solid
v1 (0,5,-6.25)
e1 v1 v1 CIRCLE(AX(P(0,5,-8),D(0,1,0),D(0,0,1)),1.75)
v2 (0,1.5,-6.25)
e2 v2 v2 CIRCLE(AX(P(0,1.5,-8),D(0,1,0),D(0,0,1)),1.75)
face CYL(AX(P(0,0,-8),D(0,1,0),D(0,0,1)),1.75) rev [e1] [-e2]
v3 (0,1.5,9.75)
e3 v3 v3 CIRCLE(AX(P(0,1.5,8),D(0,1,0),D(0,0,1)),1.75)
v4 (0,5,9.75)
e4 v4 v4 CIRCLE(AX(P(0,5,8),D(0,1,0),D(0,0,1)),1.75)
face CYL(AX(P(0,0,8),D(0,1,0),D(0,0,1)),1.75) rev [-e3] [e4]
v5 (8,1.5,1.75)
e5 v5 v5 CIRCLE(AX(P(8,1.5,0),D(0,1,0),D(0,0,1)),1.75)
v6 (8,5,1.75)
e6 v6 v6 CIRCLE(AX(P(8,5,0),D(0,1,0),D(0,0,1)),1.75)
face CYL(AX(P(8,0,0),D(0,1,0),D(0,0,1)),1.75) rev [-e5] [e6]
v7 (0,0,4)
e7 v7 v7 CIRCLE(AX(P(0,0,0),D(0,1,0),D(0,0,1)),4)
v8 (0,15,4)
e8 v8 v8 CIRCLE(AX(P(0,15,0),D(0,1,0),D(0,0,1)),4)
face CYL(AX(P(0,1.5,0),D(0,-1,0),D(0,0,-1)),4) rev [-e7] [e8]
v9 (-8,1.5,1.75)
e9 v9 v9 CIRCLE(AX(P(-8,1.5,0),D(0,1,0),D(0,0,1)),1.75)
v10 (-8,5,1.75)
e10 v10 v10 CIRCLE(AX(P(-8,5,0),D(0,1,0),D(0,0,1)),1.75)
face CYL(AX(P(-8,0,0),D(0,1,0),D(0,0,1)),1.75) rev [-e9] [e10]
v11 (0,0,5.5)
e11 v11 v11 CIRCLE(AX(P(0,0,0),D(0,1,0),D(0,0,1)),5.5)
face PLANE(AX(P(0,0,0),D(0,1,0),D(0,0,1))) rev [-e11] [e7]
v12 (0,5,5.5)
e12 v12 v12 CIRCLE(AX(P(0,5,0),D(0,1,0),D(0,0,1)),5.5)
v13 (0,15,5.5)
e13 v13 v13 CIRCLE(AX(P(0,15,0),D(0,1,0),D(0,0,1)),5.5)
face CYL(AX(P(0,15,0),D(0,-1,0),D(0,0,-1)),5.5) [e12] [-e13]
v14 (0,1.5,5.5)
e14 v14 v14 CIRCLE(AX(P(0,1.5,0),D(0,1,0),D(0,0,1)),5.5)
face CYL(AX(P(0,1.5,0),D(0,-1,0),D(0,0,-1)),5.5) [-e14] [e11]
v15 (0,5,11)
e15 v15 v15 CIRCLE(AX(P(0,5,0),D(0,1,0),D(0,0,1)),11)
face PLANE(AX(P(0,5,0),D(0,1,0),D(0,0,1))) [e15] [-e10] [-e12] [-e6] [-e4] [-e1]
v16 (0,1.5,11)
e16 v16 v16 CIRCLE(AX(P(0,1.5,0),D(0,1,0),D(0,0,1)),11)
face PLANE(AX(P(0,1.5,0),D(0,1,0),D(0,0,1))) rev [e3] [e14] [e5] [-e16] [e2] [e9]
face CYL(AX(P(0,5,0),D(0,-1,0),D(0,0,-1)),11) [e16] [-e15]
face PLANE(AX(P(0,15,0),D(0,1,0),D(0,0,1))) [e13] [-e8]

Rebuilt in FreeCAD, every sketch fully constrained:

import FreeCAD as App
import Part
import Sketcher
Q = App.Units.Quantity

doc = App.newDocument("Part")
body = doc.addObject("PartDesign::Body", "Body")

# Sketch on XZ plane
sketch1 = body.newObject("Sketcher::SketchObject", "Sketch")
sketch1.AttachmentSupport = (doc.getObject("XZ_Plane"), [""])
sketch1.MapMode = "FlatFace"
sketch1.addGeometry([
    Part.Circle(App.Vector(0, 0, 0), App.Vector(0, 0, 1), 5.5),
    Part.Circle(App.Vector(0, 0, 0), App.Vector(0, 0, 1), 4),
], False)
sketch1.addConstraint([
    Sketcher.Constraint("Coincident", 0, 3, -1, 1),
    Sketcher.Constraint("Coincident", 1, 3, -1, 1),
    Sketcher.Constraint("Diameter", 0, Q("11 mm")),
    Sketcher.Constraint("Diameter", 1, Q("8 mm")),
])
pad1 = body.newObject("PartDesign::Pad", "Pad")
pad1.Profile = sketch1
pad1.Length = 1.5
pad1.Reversed = True

# Sketch on XZ plane
sketch2 = body.newObject("Sketcher::SketchObject", "Sketch001")
sketch2.AttachmentSupport = (doc.getObject("XZ_Plane"), [""])
sketch2.MapMode = "FlatFace"
sketch2.AttachmentOffset = App.Placement(App.Vector(0, 0, -1.5), App.Rotation())
sketch2.addGeometry([
    Part.Circle(App.Vector(0, 0, 0), App.Vector(0, 0, 1), 11),
    Part.Circle(App.Vector(0, 0, 0), App.Vector(0, 0, 1), 4),
], False)
sketch2.addConstraint([
    Sketcher.Constraint("Coincident", 0, 3, -1, 1),
    Sketcher.Constraint("Coincident", 1, 3, -1, 1),
    Sketcher.Constraint("Diameter", 0, Q("22 mm")),
    Sketcher.Constraint("Diameter", 1, Q("8 mm")),
])
pad2 = body.newObject("PartDesign::Pad", "Pad001")
pad2.Profile = sketch2
pad2.Length = 3.5
pad2.Reversed = True

# Sketch on XZ plane
sketch3 = body.newObject("Sketcher::SketchObject", "Sketch002")
sketch3.AttachmentSupport = (doc.getObject("XZ_Plane"), [""])
sketch3.MapMode = "FlatFace"
sketch3.AttachmentOffset = App.Placement(App.Vector(0, 0, -5), App.Rotation())
sketch3.addGeometry([
    Part.Circle(App.Vector(0, 0, 0), App.Vector(0, 0, 1), 5.5),
    Part.Circle(App.Vector(0, 0, 0), App.Vector(0, 0, 1), 4),
], False)
sketch3.addConstraint([
    Sketcher.Constraint("Coincident", 0, 3, -1, 1),
    Sketcher.Constraint("Coincident", 1, 3, -1, 1),
    Sketcher.Constraint("Diameter", 0, Q("11 mm")),
    Sketcher.Constraint("Diameter", 1, Q("8 mm")),
])
pad3 = body.newObject("PartDesign::Pad", "Pad002")
pad3.Profile = sketch3
pad3.Length = 10
pad3.Reversed = True

# Sketch on XZ plane
sketch4 = body.newObject("Sketcher::SketchObject", "Sketch003")
sketch4.AttachmentSupport = (doc.getObject("XZ_Plane"), [""])
sketch4.MapMode = "FlatFace"
sketch4.AttachmentOffset = App.Placement(App.Vector(0, 0, -5), App.Rotation())
sketch4.addGeometry([
    Part.Circle(App.Vector(0, -8, 0), App.Vector(0, 0, 1), 1.8),
    Part.Circle(App.Vector(8, 0, 0), App.Vector(0, 0, 1), 1.8),
    Part.Circle(App.Vector(0, 8, 0), App.Vector(0, 0, 1), 1.8),
    Part.Circle(App.Vector(-8, 0, 0), App.Vector(0, 0, 1), 1.8),
], False)
sketch4.addConstraint([
    Sketcher.Constraint("Equal", 0, 1),
    Sketcher.Constraint("Equal", 1, 2),
    Sketcher.Constraint("Equal", 2, 3),
    Sketcher.Constraint("Symmetric", 0, 3, 2, 3, -1, 1),
    Sketcher.Constraint("Symmetric", 1, 3, 3, 3, -1, 1),
    Sketcher.Constraint("PointOnObject", 0, 3, -2),
    Sketcher.Constraint("PointOnObject", 1, 3, -1),
    Sketcher.Constraint("Diameter", 0, Q("3.5 mm")),
    Sketcher.Constraint("DistanceY", 0, 3, -1, 1, Q("8 mm")),
    Sketcher.Constraint("DistanceX", -1, 1, 1, 3, Q("8 mm")),
])
pocket1 = body.newObject("PartDesign::Pocket", "Pocket")
pocket1.Profile = sketch4
pocket1.Type = "ThroughAll"
pocket1.Reversed = True

doc.recompute()
